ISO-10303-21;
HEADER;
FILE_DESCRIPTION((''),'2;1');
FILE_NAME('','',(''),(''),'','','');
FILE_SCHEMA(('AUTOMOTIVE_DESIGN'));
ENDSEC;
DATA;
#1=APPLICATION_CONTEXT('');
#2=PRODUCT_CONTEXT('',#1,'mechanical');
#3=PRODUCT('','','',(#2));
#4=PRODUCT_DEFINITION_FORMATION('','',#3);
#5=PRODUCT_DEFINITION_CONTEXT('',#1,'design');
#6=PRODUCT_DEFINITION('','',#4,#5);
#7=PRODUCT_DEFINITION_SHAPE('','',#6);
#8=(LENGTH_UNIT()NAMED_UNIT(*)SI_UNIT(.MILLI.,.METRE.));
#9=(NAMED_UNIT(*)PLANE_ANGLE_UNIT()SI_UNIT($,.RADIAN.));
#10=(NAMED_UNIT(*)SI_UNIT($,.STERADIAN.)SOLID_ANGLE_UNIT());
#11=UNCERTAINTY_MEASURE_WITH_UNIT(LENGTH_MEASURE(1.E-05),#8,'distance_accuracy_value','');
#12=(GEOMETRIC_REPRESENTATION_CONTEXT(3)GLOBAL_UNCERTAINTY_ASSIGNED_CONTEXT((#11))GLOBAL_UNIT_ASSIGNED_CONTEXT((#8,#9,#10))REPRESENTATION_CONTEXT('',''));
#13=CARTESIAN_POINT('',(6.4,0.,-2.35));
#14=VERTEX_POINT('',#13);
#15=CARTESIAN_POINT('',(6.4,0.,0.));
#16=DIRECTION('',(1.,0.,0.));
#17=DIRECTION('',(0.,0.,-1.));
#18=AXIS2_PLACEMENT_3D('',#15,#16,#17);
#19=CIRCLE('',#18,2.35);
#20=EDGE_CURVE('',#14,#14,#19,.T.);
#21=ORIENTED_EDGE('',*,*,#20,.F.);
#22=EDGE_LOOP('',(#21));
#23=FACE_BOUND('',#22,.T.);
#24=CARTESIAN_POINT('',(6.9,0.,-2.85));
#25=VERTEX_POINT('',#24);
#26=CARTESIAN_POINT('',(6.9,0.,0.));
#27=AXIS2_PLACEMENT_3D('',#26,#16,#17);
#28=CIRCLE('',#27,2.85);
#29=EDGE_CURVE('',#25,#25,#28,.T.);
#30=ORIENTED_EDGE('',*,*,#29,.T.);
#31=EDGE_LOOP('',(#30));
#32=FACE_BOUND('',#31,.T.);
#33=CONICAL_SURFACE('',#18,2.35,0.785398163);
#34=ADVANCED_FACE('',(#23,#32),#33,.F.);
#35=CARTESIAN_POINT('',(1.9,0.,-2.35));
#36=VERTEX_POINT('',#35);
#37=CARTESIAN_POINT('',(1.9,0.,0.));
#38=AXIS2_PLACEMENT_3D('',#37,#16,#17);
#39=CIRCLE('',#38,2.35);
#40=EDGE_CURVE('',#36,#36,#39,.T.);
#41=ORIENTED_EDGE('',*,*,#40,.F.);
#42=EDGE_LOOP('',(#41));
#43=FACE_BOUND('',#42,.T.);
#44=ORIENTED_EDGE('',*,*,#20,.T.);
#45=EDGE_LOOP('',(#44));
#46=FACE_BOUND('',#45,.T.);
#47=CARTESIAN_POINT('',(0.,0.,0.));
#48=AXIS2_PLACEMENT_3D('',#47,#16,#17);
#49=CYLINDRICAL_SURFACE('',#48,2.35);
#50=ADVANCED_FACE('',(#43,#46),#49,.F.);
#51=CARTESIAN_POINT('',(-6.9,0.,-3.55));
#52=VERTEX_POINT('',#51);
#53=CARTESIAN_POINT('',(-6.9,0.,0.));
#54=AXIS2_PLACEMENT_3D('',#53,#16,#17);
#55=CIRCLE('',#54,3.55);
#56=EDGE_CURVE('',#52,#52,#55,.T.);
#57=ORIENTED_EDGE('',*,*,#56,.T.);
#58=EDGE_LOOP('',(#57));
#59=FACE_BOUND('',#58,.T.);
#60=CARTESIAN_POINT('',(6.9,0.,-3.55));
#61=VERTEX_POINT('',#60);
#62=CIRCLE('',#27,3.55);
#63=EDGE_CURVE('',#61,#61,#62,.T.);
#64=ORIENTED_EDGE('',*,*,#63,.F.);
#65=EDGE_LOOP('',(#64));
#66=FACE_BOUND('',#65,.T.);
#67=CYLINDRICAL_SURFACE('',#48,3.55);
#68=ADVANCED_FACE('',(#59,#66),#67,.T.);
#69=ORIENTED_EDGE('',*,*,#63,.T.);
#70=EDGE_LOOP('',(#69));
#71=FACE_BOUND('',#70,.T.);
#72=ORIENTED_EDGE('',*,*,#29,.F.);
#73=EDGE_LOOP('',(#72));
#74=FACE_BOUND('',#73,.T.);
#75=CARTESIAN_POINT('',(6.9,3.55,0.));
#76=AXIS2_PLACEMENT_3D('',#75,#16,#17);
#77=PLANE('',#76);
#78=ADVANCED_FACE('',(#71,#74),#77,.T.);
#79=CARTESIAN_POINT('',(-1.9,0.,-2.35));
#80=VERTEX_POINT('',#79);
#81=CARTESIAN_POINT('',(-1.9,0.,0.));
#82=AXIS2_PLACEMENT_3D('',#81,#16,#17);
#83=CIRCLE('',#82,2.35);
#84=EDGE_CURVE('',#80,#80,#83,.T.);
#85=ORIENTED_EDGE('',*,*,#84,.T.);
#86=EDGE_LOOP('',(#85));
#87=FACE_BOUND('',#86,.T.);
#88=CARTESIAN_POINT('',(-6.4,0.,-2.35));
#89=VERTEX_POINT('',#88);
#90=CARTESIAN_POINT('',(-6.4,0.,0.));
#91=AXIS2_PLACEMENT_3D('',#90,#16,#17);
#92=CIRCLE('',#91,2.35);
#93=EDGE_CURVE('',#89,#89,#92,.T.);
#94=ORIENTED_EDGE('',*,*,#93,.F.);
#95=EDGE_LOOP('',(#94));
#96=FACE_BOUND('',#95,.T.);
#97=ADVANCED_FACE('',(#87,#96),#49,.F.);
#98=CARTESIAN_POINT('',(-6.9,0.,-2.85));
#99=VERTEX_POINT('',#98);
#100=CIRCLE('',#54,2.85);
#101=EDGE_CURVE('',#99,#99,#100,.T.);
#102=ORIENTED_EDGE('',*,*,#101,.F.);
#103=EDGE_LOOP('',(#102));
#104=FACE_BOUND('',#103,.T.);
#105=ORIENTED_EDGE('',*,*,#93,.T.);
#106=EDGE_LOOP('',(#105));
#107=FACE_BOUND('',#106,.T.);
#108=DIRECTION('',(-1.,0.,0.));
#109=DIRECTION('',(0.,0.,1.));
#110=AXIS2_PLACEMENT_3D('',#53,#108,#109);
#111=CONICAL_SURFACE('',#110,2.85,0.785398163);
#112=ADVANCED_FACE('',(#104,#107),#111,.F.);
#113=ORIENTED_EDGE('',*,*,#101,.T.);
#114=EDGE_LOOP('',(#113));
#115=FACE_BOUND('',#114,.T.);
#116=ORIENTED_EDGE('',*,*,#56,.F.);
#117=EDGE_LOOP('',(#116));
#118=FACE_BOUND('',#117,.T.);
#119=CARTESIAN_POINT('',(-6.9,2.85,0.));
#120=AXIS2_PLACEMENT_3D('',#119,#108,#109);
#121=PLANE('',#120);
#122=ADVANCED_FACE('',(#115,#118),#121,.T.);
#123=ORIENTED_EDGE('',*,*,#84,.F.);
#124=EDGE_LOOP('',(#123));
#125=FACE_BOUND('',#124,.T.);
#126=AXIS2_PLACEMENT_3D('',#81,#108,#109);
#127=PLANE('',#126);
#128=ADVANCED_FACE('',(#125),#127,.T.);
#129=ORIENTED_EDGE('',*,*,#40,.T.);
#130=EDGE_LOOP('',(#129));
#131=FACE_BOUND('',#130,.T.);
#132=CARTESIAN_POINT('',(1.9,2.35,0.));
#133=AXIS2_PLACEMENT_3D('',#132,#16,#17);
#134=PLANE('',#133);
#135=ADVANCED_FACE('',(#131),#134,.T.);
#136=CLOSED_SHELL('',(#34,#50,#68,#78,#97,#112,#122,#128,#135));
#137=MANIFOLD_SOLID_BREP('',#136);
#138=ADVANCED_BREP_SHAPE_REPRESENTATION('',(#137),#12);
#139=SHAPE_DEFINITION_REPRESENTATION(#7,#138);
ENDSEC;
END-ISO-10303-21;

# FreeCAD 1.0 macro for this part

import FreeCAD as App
import Part
import Sketcher

V = App.Vector


def add_polygon(sketch, points):
    """Adds a closed chain of lines whose ends are joined by coincident constraints."""
    first, n = sketch.GeometryCount, len(points)
    for a, b in zip(points, points[1:] + points[:1]):
        sketch.addGeometry(Part.LineSegment(App.Vector(*a, 0), App.Vector(*b, 0)), False)
    for i in range(n):
        sketch.addConstraint(Sketcher.Constraint("Coincident", first + i, 2, first + (i + 1) % n, 1))

doc = App.newDocument("Part")
params = doc.addObject("Spreadsheet::Sheet", "Params")
for row, (alias, value) in enumerate([
    ("sketch1_width", "3.8 mm"),
    ("sketch1_width2", "4.5 mm"),
    ("sketch1_width3", "13.8 mm"),
    ("sketch1_height", "0.7 mm"),
    ("sketch1_height2", "2.35 mm"),
    ("revolution_angle", "360 deg"),
], start=1):
    params.set(f"A{row}", alias)
    params.set(f"B{row}", "=" + value)
    params.setAlias(f"B{row}", alias)

body = doc.addObject("PartDesign::Body", "Body")

# Sketch on XY plane
sketch1 = body.newObject("Sketcher::SketchObject", "Sketch")
sketch1.AttachmentSupport = (doc.getObject("XY_Plane"), [""])
sketch1.MapMode = "FlatFace"
add_polygon(sketch1, [(-1.9, 2.4), (-1.9, 0), (1.9, 0), (1.9, 2.4), (6.4, 2.4), (6.9, 2.9), (6.9, 3.5), (-6.9, 3.5), (-6.9, 2.9), (-6.4, 2.4)])  # lines 0-9
sketch1.addConstraint([
    Sketcher.Constraint("Vertical", 0),
    Sketcher.Constraint("Horizontal", 1),
    Sketcher.Constraint("Vertical", 2),
    Sketcher.Constraint("Horizontal", 3),
    Sketcher.Constraint("Vertical", 5),
    Sketcher.Constraint("Horizontal", 6),
    Sketcher.Constraint("Vertical", 7),
    Sketcher.Constraint("Horizontal", 9),
    Sketcher.Constraint("Symmetric", 0, 2, 1, 2, -1, 1),
    Sketcher.Constraint("Symmetric", 4, 2, 7, 2, -2),
    Sketcher.Constraint("Symmetric", 3, 2, 8, 2, -2),
    Sketcher.Constraint("Perpendicular", 4, 8),
    Sketcher.Constraint("DistanceX", 1, 1, 1, 2, 3.8),
    Sketcher.Constraint("DistanceX", 3, 1, 3, 2, 4.5),
    Sketcher.Constraint("DistanceX", 6, 2, 6, 1, 13.8),
    Sketcher.Constraint("DistanceY", 5, 1, 5, 2, 0.7),
    Sketcher.Constraint("DistanceY", 0, 2, 0, 1, 2.35),
])
sketch1.setExpression("Constraints[22]", "Params.sketch1_width")
sketch1.setExpression("Constraints[23]", "Params.sketch1_width2")
sketch1.setExpression("Constraints[24]", "Params.sketch1_width3")
sketch1.setExpression("Constraints[25]", "Params.sketch1_height")
sketch1.setExpression("Constraints[26]", "Params.sketch1_height2")
revolution = body.newObject("PartDesign::Revolution", "Revolution")
revolution.Profile = sketch1
revolution.ReferenceAxis = (sketch1, ["H_Axis"])
revolution.setExpression("Angle", "Params.revolution_angle")

doc.recompute()
